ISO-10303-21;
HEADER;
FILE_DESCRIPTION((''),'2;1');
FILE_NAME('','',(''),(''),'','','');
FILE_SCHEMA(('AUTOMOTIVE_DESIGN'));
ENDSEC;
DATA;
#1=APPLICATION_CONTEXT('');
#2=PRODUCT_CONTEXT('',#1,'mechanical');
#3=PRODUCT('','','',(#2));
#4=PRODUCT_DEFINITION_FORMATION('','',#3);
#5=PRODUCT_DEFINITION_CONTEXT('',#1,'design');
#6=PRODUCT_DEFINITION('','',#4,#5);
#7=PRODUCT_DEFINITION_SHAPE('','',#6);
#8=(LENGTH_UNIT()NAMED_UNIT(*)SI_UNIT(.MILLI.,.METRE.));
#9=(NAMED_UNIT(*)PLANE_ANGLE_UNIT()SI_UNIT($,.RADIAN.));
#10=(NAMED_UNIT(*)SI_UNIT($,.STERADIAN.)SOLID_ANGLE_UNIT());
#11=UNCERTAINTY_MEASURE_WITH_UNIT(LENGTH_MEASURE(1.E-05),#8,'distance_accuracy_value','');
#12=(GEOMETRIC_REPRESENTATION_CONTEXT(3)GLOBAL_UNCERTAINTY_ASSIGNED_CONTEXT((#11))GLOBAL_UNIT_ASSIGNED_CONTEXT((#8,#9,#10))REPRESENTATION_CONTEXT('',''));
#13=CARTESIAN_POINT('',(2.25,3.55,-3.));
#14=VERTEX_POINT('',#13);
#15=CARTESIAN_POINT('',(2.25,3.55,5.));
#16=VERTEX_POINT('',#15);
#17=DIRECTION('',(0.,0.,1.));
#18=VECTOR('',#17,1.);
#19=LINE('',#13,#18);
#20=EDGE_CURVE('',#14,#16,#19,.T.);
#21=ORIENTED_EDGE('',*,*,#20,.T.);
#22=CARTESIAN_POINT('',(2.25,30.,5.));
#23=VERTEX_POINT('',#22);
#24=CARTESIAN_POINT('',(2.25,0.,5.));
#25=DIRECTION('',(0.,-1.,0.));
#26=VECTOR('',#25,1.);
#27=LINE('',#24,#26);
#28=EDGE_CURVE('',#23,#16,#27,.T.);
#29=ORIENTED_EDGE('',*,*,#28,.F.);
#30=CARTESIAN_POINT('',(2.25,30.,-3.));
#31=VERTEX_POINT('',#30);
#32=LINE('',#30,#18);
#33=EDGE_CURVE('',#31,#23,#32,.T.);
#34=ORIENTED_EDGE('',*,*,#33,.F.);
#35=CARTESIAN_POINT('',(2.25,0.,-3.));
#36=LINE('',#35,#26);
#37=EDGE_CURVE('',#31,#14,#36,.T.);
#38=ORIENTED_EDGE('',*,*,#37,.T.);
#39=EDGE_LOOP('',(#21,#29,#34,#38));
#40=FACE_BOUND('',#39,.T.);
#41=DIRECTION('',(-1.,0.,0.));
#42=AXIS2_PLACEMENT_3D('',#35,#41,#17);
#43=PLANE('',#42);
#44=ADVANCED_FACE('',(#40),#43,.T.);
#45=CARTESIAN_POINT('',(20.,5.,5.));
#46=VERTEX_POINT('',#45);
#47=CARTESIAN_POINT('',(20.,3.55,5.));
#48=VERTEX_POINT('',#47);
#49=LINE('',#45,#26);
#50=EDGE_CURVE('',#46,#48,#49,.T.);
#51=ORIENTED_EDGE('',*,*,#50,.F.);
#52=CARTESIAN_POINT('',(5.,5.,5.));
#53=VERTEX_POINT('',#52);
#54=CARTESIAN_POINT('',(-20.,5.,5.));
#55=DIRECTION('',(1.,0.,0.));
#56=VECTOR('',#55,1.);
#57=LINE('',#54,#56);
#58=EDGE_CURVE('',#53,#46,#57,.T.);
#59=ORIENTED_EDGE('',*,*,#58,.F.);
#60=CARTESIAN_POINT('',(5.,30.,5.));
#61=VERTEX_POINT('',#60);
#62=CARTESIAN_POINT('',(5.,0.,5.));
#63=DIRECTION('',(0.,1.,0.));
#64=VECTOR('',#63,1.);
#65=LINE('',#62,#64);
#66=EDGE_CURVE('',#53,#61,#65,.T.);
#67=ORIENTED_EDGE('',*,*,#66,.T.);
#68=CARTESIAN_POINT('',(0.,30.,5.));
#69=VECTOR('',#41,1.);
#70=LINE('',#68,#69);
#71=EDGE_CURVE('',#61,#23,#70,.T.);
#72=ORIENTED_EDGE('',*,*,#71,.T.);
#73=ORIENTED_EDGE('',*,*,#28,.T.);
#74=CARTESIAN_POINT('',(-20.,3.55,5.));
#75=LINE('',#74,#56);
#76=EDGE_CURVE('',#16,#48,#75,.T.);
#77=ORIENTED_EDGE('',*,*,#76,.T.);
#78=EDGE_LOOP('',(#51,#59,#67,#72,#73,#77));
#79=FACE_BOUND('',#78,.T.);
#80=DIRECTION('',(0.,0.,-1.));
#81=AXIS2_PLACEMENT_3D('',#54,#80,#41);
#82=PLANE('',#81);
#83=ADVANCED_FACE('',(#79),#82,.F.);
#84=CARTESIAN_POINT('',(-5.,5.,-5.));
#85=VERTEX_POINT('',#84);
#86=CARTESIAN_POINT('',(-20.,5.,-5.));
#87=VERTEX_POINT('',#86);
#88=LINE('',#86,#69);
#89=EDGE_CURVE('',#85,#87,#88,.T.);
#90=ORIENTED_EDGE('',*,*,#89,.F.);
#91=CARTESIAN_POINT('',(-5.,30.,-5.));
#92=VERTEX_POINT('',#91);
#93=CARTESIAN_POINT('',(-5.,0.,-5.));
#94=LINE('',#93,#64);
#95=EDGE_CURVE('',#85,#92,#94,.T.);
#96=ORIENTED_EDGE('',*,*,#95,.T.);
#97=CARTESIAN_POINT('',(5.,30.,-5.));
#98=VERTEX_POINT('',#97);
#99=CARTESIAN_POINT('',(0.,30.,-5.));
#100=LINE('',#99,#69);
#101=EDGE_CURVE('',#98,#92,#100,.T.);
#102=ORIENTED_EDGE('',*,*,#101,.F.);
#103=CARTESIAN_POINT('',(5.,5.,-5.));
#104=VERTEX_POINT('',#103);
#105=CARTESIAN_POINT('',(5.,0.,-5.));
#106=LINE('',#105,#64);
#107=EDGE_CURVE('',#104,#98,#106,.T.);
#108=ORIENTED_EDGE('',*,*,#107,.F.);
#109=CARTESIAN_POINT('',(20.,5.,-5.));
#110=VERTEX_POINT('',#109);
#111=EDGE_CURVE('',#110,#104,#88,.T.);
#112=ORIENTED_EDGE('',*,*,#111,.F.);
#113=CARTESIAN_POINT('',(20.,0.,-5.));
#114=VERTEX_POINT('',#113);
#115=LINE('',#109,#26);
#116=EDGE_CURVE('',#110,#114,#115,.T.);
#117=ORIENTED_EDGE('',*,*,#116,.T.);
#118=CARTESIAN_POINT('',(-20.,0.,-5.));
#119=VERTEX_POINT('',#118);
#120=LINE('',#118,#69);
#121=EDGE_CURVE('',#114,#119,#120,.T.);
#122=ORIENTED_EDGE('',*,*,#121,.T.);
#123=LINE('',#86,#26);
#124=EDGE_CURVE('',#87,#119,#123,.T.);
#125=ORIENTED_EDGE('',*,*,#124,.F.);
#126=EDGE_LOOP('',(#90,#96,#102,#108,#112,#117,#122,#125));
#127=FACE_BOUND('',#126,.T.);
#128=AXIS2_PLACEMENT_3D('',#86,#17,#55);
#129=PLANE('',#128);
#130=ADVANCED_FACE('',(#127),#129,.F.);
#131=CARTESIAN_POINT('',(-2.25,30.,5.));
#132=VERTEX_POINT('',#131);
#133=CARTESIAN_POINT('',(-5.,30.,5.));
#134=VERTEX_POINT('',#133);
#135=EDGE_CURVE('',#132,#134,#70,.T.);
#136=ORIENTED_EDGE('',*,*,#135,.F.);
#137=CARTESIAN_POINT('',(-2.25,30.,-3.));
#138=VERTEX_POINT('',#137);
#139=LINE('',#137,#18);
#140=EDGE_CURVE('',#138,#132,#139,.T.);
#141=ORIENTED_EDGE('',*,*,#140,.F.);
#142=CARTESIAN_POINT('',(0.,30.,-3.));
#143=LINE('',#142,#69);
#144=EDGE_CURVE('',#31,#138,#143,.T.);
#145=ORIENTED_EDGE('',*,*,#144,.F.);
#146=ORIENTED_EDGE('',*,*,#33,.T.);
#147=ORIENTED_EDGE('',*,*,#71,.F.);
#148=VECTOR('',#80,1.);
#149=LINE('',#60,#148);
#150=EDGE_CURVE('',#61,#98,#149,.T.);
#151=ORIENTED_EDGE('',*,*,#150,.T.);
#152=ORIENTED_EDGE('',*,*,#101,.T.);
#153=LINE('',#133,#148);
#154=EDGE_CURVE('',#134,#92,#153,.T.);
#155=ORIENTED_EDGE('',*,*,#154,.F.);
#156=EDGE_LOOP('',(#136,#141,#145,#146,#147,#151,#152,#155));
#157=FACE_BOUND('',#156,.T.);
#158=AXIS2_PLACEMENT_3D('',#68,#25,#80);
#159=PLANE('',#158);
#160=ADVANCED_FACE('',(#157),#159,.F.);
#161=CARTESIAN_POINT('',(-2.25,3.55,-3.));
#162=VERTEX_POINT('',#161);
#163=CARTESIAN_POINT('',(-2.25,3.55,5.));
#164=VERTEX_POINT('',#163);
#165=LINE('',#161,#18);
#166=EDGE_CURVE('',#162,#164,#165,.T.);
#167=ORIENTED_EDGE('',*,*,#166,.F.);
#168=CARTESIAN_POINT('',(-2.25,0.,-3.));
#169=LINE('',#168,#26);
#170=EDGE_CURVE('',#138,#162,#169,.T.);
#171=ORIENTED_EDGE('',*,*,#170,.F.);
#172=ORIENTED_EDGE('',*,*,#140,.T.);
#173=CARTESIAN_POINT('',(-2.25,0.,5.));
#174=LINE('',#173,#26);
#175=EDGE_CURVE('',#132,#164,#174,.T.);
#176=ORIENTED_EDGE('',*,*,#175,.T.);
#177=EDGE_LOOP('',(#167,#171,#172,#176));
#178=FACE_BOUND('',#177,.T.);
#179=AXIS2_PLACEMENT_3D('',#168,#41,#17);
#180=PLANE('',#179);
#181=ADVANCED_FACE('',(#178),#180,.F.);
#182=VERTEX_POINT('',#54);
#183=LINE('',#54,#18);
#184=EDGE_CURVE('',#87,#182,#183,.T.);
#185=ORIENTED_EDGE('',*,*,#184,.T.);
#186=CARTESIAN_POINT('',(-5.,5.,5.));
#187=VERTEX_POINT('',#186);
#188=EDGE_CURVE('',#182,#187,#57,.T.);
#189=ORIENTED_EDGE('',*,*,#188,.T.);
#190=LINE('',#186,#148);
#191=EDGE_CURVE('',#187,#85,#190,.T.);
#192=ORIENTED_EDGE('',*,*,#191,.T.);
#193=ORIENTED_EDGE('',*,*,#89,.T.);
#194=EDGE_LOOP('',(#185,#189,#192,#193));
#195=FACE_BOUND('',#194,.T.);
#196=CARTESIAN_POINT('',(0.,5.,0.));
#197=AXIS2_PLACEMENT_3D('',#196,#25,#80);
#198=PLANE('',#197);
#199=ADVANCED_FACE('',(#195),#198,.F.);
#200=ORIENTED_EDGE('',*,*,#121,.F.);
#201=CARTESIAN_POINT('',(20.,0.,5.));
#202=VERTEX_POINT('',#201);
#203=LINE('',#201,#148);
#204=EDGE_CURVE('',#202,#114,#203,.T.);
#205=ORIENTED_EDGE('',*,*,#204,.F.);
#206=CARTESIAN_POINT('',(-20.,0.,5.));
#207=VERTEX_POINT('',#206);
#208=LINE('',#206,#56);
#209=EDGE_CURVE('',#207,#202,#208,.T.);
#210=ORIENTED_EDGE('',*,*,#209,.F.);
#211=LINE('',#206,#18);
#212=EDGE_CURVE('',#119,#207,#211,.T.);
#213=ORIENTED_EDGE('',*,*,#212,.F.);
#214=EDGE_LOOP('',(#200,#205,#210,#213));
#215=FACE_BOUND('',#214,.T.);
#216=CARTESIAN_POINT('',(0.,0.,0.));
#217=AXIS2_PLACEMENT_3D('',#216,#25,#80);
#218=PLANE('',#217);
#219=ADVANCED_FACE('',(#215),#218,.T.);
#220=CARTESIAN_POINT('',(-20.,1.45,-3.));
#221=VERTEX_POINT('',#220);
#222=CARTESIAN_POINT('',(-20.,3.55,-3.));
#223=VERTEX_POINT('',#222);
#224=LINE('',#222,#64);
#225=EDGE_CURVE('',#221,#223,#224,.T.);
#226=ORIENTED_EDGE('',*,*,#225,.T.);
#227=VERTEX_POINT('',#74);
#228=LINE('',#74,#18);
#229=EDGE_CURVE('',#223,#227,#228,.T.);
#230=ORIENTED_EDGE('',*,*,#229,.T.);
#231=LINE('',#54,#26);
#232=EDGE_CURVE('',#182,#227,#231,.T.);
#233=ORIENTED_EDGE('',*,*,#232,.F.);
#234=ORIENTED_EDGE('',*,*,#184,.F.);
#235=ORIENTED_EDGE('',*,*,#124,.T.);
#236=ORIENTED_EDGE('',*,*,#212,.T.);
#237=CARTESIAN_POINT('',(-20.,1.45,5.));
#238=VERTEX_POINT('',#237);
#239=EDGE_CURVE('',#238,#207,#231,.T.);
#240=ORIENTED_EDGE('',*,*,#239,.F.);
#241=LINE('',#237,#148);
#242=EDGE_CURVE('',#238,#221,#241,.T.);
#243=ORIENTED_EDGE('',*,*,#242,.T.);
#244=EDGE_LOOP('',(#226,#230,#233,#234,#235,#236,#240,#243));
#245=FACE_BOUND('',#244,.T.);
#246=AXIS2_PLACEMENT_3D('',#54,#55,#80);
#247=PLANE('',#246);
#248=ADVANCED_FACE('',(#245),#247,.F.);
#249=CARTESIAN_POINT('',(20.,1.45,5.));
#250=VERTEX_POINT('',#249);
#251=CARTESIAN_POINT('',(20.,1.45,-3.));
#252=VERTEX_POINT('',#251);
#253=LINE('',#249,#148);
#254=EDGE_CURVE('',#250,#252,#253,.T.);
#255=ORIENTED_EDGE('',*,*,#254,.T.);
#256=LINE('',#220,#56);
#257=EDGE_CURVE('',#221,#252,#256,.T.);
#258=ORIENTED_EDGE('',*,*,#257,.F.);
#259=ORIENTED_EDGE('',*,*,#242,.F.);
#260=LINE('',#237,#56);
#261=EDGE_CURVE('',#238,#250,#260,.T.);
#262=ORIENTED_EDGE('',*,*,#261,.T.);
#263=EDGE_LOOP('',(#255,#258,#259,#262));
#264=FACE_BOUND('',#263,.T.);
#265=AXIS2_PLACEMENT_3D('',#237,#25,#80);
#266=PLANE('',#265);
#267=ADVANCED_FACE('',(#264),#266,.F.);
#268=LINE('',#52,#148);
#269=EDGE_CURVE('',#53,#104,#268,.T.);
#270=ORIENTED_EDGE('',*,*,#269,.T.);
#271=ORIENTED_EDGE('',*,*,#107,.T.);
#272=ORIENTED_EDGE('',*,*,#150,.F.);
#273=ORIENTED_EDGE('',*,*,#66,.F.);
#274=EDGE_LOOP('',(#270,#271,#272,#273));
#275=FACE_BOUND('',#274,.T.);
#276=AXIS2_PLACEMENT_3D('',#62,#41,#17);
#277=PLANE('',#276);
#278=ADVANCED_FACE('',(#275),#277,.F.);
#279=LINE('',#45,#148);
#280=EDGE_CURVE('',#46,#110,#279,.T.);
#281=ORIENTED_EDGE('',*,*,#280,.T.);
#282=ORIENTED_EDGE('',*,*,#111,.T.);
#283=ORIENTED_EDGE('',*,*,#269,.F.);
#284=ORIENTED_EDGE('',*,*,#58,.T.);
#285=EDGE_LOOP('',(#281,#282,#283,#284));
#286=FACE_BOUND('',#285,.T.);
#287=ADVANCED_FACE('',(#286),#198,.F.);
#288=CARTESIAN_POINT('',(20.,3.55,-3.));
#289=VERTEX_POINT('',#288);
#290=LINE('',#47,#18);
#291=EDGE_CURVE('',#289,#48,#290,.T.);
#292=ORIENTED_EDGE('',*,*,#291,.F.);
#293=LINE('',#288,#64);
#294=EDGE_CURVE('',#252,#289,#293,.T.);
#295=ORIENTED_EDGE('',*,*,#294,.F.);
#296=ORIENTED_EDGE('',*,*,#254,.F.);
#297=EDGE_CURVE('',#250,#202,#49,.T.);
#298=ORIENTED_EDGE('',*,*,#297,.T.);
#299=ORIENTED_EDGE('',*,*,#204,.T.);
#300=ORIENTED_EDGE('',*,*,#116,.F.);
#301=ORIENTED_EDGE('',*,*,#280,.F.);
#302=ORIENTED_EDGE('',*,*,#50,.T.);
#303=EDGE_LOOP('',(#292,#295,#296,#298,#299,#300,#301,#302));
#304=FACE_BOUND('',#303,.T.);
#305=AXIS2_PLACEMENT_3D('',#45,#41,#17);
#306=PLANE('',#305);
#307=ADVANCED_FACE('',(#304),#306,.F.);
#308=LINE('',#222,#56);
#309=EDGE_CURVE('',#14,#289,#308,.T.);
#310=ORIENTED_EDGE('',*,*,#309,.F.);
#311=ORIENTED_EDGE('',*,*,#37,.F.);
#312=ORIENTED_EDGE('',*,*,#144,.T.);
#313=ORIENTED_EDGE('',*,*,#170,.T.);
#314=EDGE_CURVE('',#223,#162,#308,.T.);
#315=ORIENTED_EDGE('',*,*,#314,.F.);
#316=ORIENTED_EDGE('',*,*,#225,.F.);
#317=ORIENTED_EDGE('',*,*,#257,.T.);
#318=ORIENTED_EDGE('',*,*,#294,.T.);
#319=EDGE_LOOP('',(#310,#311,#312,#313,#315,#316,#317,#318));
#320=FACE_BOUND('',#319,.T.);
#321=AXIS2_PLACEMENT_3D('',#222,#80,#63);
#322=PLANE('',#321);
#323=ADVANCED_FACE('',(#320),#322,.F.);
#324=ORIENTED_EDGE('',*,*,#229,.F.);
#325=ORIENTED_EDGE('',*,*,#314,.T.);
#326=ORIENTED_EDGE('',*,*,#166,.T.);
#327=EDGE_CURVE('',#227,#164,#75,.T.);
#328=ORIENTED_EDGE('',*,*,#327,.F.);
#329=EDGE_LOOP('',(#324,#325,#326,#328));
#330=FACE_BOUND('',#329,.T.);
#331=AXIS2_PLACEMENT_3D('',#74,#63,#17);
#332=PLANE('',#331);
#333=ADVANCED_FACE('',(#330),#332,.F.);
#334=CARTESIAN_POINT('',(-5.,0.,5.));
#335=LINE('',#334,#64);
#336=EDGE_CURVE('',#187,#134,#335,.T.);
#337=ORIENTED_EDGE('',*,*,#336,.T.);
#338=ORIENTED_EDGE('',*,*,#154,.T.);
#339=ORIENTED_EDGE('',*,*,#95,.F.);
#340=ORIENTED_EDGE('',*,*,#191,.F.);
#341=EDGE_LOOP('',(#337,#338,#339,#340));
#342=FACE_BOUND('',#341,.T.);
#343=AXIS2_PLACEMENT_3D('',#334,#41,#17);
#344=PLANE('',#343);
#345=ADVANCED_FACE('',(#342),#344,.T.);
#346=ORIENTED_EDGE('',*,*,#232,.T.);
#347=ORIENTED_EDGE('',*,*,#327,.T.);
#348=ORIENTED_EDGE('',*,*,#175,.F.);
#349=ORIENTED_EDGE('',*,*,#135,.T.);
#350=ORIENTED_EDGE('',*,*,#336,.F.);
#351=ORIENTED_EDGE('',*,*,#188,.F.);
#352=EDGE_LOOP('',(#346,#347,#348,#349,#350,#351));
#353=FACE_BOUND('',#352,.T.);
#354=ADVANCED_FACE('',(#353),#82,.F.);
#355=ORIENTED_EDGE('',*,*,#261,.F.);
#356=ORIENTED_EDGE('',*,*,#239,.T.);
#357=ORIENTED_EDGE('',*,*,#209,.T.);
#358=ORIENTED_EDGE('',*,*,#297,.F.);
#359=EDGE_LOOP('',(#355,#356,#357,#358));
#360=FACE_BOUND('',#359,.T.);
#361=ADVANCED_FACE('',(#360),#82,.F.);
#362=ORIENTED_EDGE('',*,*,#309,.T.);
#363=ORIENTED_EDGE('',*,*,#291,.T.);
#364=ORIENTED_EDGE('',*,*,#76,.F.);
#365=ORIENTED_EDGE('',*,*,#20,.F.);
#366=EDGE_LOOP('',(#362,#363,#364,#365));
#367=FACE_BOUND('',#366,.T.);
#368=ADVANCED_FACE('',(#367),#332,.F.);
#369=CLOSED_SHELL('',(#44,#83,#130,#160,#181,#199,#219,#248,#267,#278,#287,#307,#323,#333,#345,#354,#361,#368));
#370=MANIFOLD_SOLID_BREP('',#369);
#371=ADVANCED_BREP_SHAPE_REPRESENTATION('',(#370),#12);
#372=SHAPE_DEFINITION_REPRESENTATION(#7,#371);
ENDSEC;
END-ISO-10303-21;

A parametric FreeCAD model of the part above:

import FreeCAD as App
import Part
import Sketcher
from FreeCAD import Vector
Q = App.Units.Quantity


def add_polygon(sketch, points):
    """Adds a closed chain of lines whose ends are joined by coincident constraints."""
    first, n = sketch.GeometryCount, len(points)
    for a, b in zip(points, points[1:] + points[:1]):
        sketch.addGeometry(Part.LineSegment(App.Vector(*a, 0), App.Vector(*b, 0)), False)
    for i in range(n):
        sketch.addConstraint(Sketcher.Constraint("Coincident", first + i, 2, first + (i + 1) % n, 1))

doc = App.newDocument("Part")
body = doc.addObject("PartDesign::Body", "Body")

sketch1 = body.newObject("Sketcher::SketchObject", "Sketch")
sketch1.AttachmentSupport = (doc.getObject("XZ_Plane"), [""])
sketch1.MapMode = "FlatFace"
add_polygon(sketch1, [(-20, -5), (-20, 5), (20, 5), (20, -5)])
sketch1.addConstraint([
    Sketcher.Constraint("Vertical", 0),
    Sketcher.Constraint("Horizontal", 1),
    Sketcher.Constraint("Vertical", 2),
    Sketcher.Constraint("Horizontal", 3),
    Sketcher.Constraint("Symmetric", 0, 2, 2, 2, -1, 1),
    Sketcher.Constraint("DistanceX", 1, 1, 1, 2, Q("40 mm")),
    Sketcher.Constraint("DistanceY", 0, 1, 0, 2, Q("10 mm")),
])
pad1 = body.newObject("PartDesign::Pad", "Pad")
pad1.Profile = sketch1
pad1.Length = 5
pad1.Reversed = True

sketch2 = body.newObject("Sketcher::SketchObject", "Sketch001")
sketch2.AttachmentSupport = (doc.getObject("YZ_Plane"), [""])
sketch2.MapMode = "FlatFace"
sketch2.AttachmentOffset = App.Placement(Vector(0, 0, 20), App.Rotation())
add_polygon(sketch2, [(3.5, 5), (1.4, 5), (1.4, -3), (3.5, -3)])
sketch2.addConstraint([
    Sketcher.Constraint("Horizontal", 0),
    Sketcher.Constraint("Vertical", 1),
    Sketcher.Constraint("Horizontal", 2),
    Sketcher.Constraint("Vertical", 3),
    Sketcher.Constraint("DistanceY", 1, 2, 1, 1, Q("8 mm")),
    Sketcher.Constraint("DistanceX", 0, 2, 0, 1, Q("2.1 mm")),
    Sketcher.Constraint("DistanceY", -1, 1, 0, 2, Q("5 mm")),
    Sketcher.Constraint("DistanceX", -1, 1, 0, 2, Q("1.45 mm")),
])
pocket1 = body.newObject("PartDesign::Pocket", "Pocket")
pocket1.Profile = sketch2
pocket1.Type = "ThroughAll"

sketch3 = body.newObject("Sketcher::SketchObject", "Sketch002")
sketch3.AttachmentSupport = (doc.getObject("XY_Plane"), [""])
sketch3.MapMode = "FlatFace"
sketch3.AttachmentOffset = App.Placement(Vector(0, 0, -5), App.Rotation())
add_polygon(sketch3, [(5, 30), (5, 5), (-5, 5), (-5, 30)])
sketch3.addConstraint([
    Sketcher.Constraint("Vertical", 0),
    Sketcher.Constraint("Horizontal", 1),
    Sketcher.Constraint("Vertical", 2),
    Sketcher.Constraint("Horizontal", 3),
    Sketcher.Constraint("DistanceX", 1, 2, 1, 1, Q("10 mm")),
    Sketcher.Constraint("DistanceY", 0, 2, 0, 1, Q("25 mm")),
    Sketcher.Constraint("DistanceX", -1, 1, 0, 2, Q("5 mm")),
    Sketcher.Constraint("DistanceY", -1, 1, 0, 2, Q("5 mm")),
])
pad2 = body.newObject("PartDesign::Pad", "Pad001")
pad2.Profile = sketch3
pad2.Length = 10

sketch4 = body.newObject("Sketcher::SketchObject", "Sketch003")
sketch4.AttachmentSupport = (doc.getObject("XY_Plane"), [""])
sketch4.MapMode = "FlatFace"
sketch4.AttachmentOffset = App.Placement(Vector(0, 0, 5), App.Rotation())
add_polygon(sketch4, [(-2.2, 30), (-2.2, 3.5), (2.2, 3.5), (2.2, 30)])
sketch4.addConstraint([
    Sketcher.Constraint("Vertical", 0),
    Sketcher.Constraint("Horizontal", 1),
    Sketcher.Constraint("Vertical", 2),
    Sketcher.Constraint("Horizontal", 3),
    Sketcher.Constraint("DistanceX", 1, 1, 1, 2, Q("4.5 mm")),
    Sketcher.Constraint("DistanceY", -1, 1, 2, 2, Q("30 mm")),
    Sketcher.Constraint("DistanceY", 0, 2, 0, 1, Q("26.45 mm")),
    Sketcher.Constraint("DistanceX", 0, 2, -1, 1, Q("2.25 mm")),
])
pocket2 = body.newObject("PartDesign::Pocket", "Pocket001")
pocket2.Profile = sketch4
pocket2.Length = 8

doc.recompute()
